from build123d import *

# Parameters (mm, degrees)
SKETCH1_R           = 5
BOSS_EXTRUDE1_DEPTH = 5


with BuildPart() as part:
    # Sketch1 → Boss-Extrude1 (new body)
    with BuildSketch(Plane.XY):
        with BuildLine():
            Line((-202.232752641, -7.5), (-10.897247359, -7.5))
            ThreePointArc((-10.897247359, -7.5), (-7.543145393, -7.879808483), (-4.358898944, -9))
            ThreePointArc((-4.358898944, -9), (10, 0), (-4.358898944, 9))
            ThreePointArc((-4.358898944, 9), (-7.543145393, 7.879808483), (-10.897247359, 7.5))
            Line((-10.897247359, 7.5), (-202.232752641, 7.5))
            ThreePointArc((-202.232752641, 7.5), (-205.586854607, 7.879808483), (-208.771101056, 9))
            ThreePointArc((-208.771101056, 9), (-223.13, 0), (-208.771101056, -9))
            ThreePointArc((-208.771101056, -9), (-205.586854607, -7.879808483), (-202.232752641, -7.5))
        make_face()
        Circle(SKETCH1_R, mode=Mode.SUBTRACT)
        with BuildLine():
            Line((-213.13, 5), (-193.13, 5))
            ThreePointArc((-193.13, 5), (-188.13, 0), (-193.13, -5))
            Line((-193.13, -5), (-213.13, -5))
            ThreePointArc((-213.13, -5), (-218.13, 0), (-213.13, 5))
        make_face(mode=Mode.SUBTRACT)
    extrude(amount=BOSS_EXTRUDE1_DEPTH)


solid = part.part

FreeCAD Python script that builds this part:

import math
import FreeCAD as App
import Part
import Sketcher

V = App.Vector
Q = App.Units.Quantity

doc = App.newDocument("Part")
body = doc.addObject("PartDesign::Body", "Body")

# Sketch on XY plane
sketch1 = body.newObject("Sketcher::SketchObject", "Sketch")
sketch1.AttachmentSupport = (doc.getObject("XY_Plane"), [""])
sketch1.MapMode = "FlatFace"
sketch1.addGeometry([
    Part.LineSegment(V(-202, -8, 0), V(-11, -8, 0)),  # 0
    Part.ArcOfCircle(Part.Circle(V(-11, -23, 0), V(0, 0, 1), 15), math.radians(64), math.radians(90)),  # 1
    Part.ArcOfCircle(Part.Circle(V(0, 0, 0), V(0, 0, 1), 10), math.radians(-116), math.radians(116)),  # 2
    Part.ArcOfCircle(Part.Circle(V(-11, 23, 0), V(0, 0, 1), 15), math.radians(-90), math.radians(-64)),  # 3
    Part.LineSegment(V(-11, 8, 0), V(-202, 8, 0)),  # 4
    Part.ArcOfCircle(Part.Circle(V(-202, 23, 0), V(0, 0, 1), 15), math.radians(-116), math.radians(-90)),  # 5
    Part.ArcOfCircle(Part.Circle(V(-213, 0, 0), V(0, 0, 1), 10), math.radians(64), math.radians(296)),  # 6
    Part.ArcOfCircle(Part.Circle(V(-202, -23, 0), V(0, 0, 1), 15), math.radians(90), math.radians(116)),  # 7
    Part.ArcOfCircle(Part.Circle(V(-213, 0, 0), V(0, 0, 1), 5), math.radians(90), math.radians(270)),  # 8
    Part.LineSegment(V(-213, 5, 0), V(-193, 5, 0)),  # 9
    Part.ArcOfCircle(Part.Circle(V(-193, 0, 0), V(0, 0, 1), 5), math.radians(-90), math.radians(90)),  # 10
    Part.LineSegment(V(-193, -5, 0), V(-213, -5, 0)),  # 11
    Part.Circle(V(0, 0, 0), V(0, 0, 1), 5),  # 12
], False)
sketch1.addConstraint([
    Sketcher.Constraint("Tangent", 0, 2, 1, 2),
    Sketcher.Constraint("Tangent", 1, 1, 2, 1),
    Sketcher.Constraint("Tangent", 2, 2, 3, 2),
    Sketcher.Constraint("Tangent", 3, 1, 4, 1),
    Sketcher.Constraint("Tangent", 4, 2, 5, 2),
    Sketcher.Constraint("Tangent", 5, 1, 6, 1),
    Sketcher.Constraint("Tangent", 6, 2, 7, 2),
    Sketcher.Constraint("Tangent", 7, 1, 0, 1),
    Sketcher.Constraint("Tangent", 8, 1, 9, 1),
    Sketcher.Constraint("Tangent", 9, 2, 10, 2),
    Sketcher.Constraint("Tangent", 10, 1, 11, 1),
    Sketcher.Constraint("Tangent", 11, 2, 8, 2),
    Sketcher.Constraint("Horizontal", 0),
    Sketcher.Constraint("Horizontal", 4),
    Sketcher.Constraint("Horizontal", 9),
    Sketcher.Constraint("Horizontal", 11),
    Sketcher.Constraint("Coincident", 2, 3, -1, 1),
    Sketcher.Constraint("Coincident", 12, 3, -1, 1),
    Sketcher.Constraint("Coincident", 8, 3, 6, 3),
    Sketcher.Constraint("Equal", 1, 3),
    Sketcher.Constraint("Equal", 3, 5),
    Sketcher.Constraint("Equal", 2, 6),
    Sketcher.Constraint("Equal", 5, 7),
    Sketcher.Constraint("Equal", 10, 12),
    Sketcher.Constraint("Symmetric", 5, 3, 7, 3, -1),
    Sketcher.Constraint("Diameter", 12, Q("10 mm")),
    Sketcher.Constraint("Radius", 1, Q("15 mm")),
    Sketcher.Constraint("Radius", 2, Q("10 mm")),
    Sketcher.Constraint("DistanceX", 9, 1, 9, 2, Q("20 mm")),
    Sketcher.Constraint("DistanceY", 1, 1, -1, 1, Q("9 mm")),
    Sketcher.Constraint("DistanceX", 6, 3, -1, 1, Q("213.13 mm")),
])
pad1 = body.newObject("PartDesign::Pad", "Pad")
pad1.Profile = sketch1
pad1.Length = 5

doc.recompute()
